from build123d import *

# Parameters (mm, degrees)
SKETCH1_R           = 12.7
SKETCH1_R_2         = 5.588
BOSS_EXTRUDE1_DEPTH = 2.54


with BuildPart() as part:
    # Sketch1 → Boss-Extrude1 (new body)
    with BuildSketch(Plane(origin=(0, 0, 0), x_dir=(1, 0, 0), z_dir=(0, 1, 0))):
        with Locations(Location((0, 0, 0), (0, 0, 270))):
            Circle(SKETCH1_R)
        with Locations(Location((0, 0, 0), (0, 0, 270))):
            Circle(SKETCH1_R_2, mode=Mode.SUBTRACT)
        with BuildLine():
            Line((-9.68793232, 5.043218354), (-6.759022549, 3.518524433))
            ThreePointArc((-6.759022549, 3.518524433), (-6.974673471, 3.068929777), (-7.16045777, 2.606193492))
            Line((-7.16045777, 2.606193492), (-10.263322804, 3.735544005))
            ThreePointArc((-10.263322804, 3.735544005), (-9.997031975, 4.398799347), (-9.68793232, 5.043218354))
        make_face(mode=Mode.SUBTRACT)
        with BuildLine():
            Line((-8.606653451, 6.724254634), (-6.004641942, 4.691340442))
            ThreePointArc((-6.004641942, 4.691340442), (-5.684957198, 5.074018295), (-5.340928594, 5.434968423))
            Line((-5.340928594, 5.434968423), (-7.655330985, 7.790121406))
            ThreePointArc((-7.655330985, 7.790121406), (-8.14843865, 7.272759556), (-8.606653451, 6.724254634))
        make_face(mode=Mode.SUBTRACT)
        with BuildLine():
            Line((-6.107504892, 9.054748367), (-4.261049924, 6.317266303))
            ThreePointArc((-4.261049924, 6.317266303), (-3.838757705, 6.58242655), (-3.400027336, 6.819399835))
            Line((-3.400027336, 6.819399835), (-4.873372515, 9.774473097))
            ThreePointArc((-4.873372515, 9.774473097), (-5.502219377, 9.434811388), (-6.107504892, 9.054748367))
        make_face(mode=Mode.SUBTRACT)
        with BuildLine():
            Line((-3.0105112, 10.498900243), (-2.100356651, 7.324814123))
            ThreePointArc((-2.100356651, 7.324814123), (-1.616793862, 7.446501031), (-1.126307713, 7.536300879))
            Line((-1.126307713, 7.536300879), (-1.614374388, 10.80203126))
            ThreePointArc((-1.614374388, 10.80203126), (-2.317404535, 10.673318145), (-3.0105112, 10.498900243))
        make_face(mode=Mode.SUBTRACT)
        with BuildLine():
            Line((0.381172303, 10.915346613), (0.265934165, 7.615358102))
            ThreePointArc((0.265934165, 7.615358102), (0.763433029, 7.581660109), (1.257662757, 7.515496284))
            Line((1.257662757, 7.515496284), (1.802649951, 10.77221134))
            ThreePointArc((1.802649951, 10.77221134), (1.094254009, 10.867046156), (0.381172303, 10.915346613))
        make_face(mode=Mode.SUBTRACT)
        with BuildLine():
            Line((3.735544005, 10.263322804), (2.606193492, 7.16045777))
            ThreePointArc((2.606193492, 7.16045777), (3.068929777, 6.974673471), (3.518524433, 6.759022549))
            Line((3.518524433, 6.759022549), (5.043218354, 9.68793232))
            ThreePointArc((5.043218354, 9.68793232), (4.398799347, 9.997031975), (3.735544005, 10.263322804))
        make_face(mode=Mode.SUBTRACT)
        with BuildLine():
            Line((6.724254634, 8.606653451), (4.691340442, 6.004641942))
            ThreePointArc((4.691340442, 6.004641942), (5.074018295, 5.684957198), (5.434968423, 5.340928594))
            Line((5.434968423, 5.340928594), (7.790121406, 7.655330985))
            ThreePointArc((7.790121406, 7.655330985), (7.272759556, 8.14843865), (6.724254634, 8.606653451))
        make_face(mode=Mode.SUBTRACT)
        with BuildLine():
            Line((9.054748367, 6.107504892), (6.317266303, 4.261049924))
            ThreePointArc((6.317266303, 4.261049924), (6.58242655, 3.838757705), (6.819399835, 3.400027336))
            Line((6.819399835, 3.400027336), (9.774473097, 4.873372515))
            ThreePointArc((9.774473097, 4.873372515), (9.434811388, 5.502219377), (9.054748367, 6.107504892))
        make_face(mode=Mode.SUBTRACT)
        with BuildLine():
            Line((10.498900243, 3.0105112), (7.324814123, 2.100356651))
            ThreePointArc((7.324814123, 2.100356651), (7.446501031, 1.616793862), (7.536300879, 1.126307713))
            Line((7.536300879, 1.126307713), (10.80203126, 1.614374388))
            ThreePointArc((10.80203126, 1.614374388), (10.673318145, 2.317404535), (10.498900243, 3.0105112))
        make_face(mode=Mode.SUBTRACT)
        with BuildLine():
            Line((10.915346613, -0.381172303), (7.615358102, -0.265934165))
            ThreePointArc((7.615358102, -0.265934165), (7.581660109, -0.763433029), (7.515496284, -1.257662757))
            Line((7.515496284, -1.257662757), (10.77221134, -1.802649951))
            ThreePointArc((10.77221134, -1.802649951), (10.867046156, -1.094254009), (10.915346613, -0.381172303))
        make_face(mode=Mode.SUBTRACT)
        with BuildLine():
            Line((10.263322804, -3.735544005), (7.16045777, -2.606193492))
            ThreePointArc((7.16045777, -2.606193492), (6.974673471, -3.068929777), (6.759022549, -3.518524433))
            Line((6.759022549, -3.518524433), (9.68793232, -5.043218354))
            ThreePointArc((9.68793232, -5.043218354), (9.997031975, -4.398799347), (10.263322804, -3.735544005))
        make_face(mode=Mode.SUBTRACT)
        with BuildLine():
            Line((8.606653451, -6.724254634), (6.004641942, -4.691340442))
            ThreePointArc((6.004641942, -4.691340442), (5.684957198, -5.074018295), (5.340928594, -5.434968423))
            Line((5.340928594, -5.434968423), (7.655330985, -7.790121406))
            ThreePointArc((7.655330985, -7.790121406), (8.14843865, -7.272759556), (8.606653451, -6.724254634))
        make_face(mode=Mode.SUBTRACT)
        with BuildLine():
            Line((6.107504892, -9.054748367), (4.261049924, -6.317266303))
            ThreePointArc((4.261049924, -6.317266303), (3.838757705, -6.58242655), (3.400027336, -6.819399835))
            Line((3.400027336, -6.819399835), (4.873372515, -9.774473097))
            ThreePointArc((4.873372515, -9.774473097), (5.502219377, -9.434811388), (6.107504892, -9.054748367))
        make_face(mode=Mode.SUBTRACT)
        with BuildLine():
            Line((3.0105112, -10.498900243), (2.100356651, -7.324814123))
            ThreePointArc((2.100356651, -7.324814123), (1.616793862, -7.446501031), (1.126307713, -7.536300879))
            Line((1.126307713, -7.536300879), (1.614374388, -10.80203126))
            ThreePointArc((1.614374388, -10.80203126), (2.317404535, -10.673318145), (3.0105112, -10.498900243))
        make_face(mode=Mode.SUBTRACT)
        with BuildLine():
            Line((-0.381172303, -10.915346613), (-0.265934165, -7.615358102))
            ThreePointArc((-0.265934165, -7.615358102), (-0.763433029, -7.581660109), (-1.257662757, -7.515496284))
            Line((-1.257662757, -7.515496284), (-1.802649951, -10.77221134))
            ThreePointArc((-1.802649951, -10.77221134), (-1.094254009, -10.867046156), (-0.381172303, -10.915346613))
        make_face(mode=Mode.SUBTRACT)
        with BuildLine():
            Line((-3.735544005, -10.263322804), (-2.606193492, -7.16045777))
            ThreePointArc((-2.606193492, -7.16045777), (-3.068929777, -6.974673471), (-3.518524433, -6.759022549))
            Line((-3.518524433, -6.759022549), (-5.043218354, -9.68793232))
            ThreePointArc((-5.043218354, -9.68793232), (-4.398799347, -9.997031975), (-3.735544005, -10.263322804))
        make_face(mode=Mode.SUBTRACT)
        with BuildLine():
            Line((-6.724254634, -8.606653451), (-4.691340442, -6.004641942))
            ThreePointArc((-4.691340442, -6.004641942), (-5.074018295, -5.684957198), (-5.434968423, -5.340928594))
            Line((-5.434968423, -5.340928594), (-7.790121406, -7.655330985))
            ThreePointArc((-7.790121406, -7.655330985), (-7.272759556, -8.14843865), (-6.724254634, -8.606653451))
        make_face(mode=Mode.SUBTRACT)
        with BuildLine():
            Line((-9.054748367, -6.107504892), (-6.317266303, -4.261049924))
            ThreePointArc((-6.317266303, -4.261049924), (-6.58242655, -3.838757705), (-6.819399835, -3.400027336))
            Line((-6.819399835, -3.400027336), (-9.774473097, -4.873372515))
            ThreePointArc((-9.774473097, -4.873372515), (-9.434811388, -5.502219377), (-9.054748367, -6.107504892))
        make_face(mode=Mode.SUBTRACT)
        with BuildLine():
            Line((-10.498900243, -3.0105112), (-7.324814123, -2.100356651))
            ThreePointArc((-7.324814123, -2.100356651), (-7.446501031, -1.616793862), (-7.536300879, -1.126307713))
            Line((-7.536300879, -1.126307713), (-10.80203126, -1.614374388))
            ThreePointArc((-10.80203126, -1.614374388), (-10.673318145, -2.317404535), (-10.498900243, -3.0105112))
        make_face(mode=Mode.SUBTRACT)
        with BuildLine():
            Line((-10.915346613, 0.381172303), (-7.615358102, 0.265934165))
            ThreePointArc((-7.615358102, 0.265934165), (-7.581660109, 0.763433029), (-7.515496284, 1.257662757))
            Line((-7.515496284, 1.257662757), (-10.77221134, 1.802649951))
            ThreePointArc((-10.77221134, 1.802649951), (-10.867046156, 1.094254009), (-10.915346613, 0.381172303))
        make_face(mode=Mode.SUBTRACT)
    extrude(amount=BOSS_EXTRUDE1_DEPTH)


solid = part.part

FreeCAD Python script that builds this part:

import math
import FreeCAD as App
import Part
import Sketcher
from FreeCAD import Vector
Q = App.Units.Quantity

doc = App.newDocument("Part")
body = doc.addObject("PartDesign::Body", "Body")

sketch1 = body.newObject("Sketcher::SketchObject", "Sketch")
sketch1.AttachmentSupport = (doc.getObject("XZ_Plane"), [""])
sketch1.MapMode = "FlatFace"
sketch1.addGeometry([
    Part.Circle(Vector(0, 0, 0), Vector(0, 0, 1), 12.7),
    Part.LineSegment(Vector(-6, -4.7, 0), Vector(-8.6, -6.7, 0)),
    Part.ArcOfCircle(Part.Circle(Vector(0, 0, 0), Vector(0, 0, 1), 10.9), math.radians(-142), math.radians(-134.5)),
    Part.LineSegment(Vector(-7.7, -7.8, 0), Vector(-5.3, -5.4, 0)),
    Part.ArcOfCircle(Part.Circle(Vector(0, 0, 0), Vector(0, 0, 1), 7.6), math.radians(-142), math.radians(-134.5)),
    Part.ArcOfCircle(Part.Circle(Vector(0, 0, 0), Vector(0, 0, 1), 10.9), math.radians(-160), math.radians(-152.5)),
    Part.LineSegment(Vector(-9.7, -5, 0), Vector(-6.8, -3.5, 0)),
    Part.ArcOfCircle(Part.Circle(Vector(0, 0, 0), Vector(0, 0, 1), 7.6), math.radians(-160), math.radians(-152.5)),
    Part.LineSegment(Vector(-7.2, -2.6, 0), Vector(-10.3, -3.7, 0)),
    Part.LineSegment(Vector(-7.6, -0.3, 0), Vector(-10.9, -0.4, 0)),
    Part.ArcOfCircle(Part.Circle(Vector(0, 0, 0), Vector(0, 0, 1), 10.9), math.radians(-178), math.radians(-170.5)),
    Part.LineSegment(Vector(-10.8, -1.8, 0), Vector(-7.5, -1.3, 0)),
    Part.ArcOfCircle(Part.Circle(Vector(0, 0, 0), Vector(0, 0, 1), 7.6), math.radians(-178), math.radians(-170.5)),
    Part.LineSegment(Vector(-4.3, -6.3, 0), Vector(-6.1, -9.1, 0)),
    Part.ArcOfCircle(Part.Circle(Vector(0, 0, 0), Vector(0, 0, 1), 10.9), math.radians(-124), math.radians(-116.5)),
    Part.LineSegment(Vector(-4.9, -9.8, 0), Vector(-3.4, -6.8, 0)),
    Part.ArcOfCircle(Part.Circle(Vector(0, 0, 0), Vector(0, 0, 1), 7.6), math.radians(-124), math.radians(-116.5)),
    Part.LineSegment(Vector(-2.1, -7.3, 0), Vector(-3, -10.5, 0)),
    Part.ArcOfCircle(Part.Circle(Vector(0, 0, 0), Vector(0, 0, 1), 10.9), math.radians(-106), math.radians(-98.5)),
    Part.LineSegment(Vector(-1.6, -10.8, 0), Vector(-1.1, -7.5, 0)),
    Part.ArcOfCircle(Part.Circle(Vector(0, 0, 0), Vector(0, 0, 1), 7.6), math.radians(-106), math.radians(-98.5)),
    Part.Circle(Vector(0, 0, 0), Vector(0, 0, 1), 5.6),
    Part.LineSegment(Vector(-7.3, 2.1, 0), Vector(-10.5, 3, 0)),
    Part.ArcOfCircle(Part.Circle(Vector(0, 0, 0), Vector(0, 0, 1), 10.9), math.radians(164), math.radians(171.5)),
    Part.LineSegment(Vector(-10.8, 1.6, 0), Vector(-7.5, 1.1, 0)),
    Part.ArcOfCircle(Part.Circle(Vector(0, 0, 0), Vector(0, 0, 1), 7.6), math.radians(164), math.radians(171.5)),
    Part.LineSegment(Vector(-6.3, 4.3, 0), Vector(-9.1, 6.1, 0)),
    Part.ArcOfCircle(Part.Circle(Vector(0, 0, 0), Vector(0, 0, 1), 10.9), math.radians(146), math.radians(153.5)),
    Part.LineSegment(Vector(-9.8, 4.9, 0), Vector(-6.8, 3.4, 0)),
    Part.ArcOfCircle(Part.Circle(Vector(0, 0, 0), Vector(0, 0, 1), 7.6), math.radians(146), math.radians(153.5)),
    Part.LineSegment(Vector(-4.7, 6, 0), Vector(-6.7, 8.6, 0)),
    Part.ArcOfCircle(Part.Circle(Vector(0, 0, 0), Vector(0, 0, 1), 10.9), math.radians(128), math.radians(135.5)),
    Part.LineSegment(Vector(-7.8, 7.7, 0), Vector(-5.4, 5.3, 0)),
    Part.ArcOfCircle(Part.Circle(Vector(0, 0, 0), Vector(0, 0, 1), 7.6), math.radians(128), math.radians(135.5)),
    Part.LineSegment(Vector(-2.6, 7.2, 0), Vector(-3.7, 10.3, 0)),
    Part.ArcOfCircle(Part.Circle(Vector(0, 0, 0), Vector(0, 0, 1), 10.9), math.radians(110), math.radians(117.5)),
    Part.LineSegment(Vector(-5, 9.7, 0), Vector(-3.5, 6.8, 0)),
    Part.ArcOfCircle(Part.Circle(Vector(0, 0, 0), Vector(0, 0, 1), 7.6), math.radians(110), math.radians(117.5)),
    Part.LineSegment(Vector(-0.3, 7.6, 0), Vector(-0.4, 10.9, 0)),
    Part.ArcOfCircle(Part.Circle(Vector(0, 0, 0), Vector(0, 0, 1), 10.9), math.radians(92), math.radians(99.5)),
    Part.LineSegment(Vector(-1.8, 10.8, 0), Vector(-1.3, 7.5, 0)),
    Part.ArcOfCircle(Part.Circle(Vector(0, 0, 0), Vector(0, 0, 1), 7.6), math.radians(92), math.radians(99.5)),
    Part.LineSegment(Vector(0.3, -7.6, 0), Vector(0.4, -10.9, 0)),
    Part.ArcOfCircle(Part.Circle(Vector(0, 0, 0), Vector(0, 0, 1), 10.9), math.radians(-88), math.radians(-80.5)),
    Part.LineSegment(Vector(1.8, -10.8, 0), Vector(1.3, -7.5, 0)),
    Part.ArcOfCircle(Part.Circle(Vector(0, 0, 0), Vector(0, 0, 1), 7.6), math.radians(-88), math.radians(-80.5)),
    Part.LineSegment(Vector(2.6, -7.2, 0), Vector(3.7, -10.3, 0)),
    Part.ArcOfCircle(Part.Circle(Vector(0, 0, 0), Vector(0, 0, 1), 10.9), math.radians(-70), math.radians(-62.5)),
    Part.LineSegment(Vector(5, -9.7, 0), Vector(3.5, -6.8, 0)),
    Part.ArcOfCircle(Part.Circle(Vector(0, 0, 0), Vector(0, 0, 1), 7.6), math.radians(-70), math.radians(-62.5)),
    Part.LineSegment(Vector(4.7, -6, 0), Vector(6.7, -8.6, 0)),
    Part.ArcOfCircle(Part.Circle(Vector(0, 0, 0), Vector(0, 0, 1), 10.9), math.radians(-52), math.radians(-44.5)),
    Part.LineSegment(Vector(7.8, -7.7, 0), Vector(5.4, -5.3, 0)),
    Part.ArcOfCircle(Part.Circle(Vector(0, 0, 0), Vector(0, 0, 1), 7.6), math.radians(-52), math.radians(-44.5)),
    Part.LineSegment(Vector(6.3, -4.3, 0), Vector(9.1, -6.1, 0)),
    Part.ArcOfCircle(Part.Circle(Vector(0, 0, 0), Vector(0, 0, 1), 10.9), math.radians(-34), math.radians(-26.5)),
    Part.LineSegment(Vector(9.8, -4.9, 0), Vector(6.8, -3.4, 0)),
    Part.ArcOfCircle(Part.Circle(Vector(0, 0, 0), Vector(0, 0, 1), 7.6), math.radians(-34), math.radians(-26.5)),
    Part.LineSegment(Vector(7.3, -2.1, 0), Vector(10.5, -3, 0)),
    Part.ArcOfCircle(Part.Circle(Vector(0, 0, 0), Vector(0, 0, 1), 10.9), math.radians(-16), math.radians(-8.5)),
    Part.LineSegment(Vector(10.8, -1.6, 0), Vector(7.5, -1.1, 0)),
    Part.ArcOfCircle(Part.Circle(Vector(0, 0, 0), Vector(0, 0, 1), 7.6), math.radians(-16), math.radians(-8.5)),
    Part.LineSegment(Vector(2.1, 7.3, 0), Vector(3, 10.5, 0)),
    Part.ArcOfCircle(Part.Circle(Vector(0, 0, 0), Vector(0, 0, 1), 10.9), math.radians(74), math.radians(81.5)),
    Part.LineSegment(Vector(1.6, 10.8, 0), Vector(1.1, 7.5, 0)),
    Part.ArcOfCircle(Part.Circle(Vector(0, 0, 0), Vector(0, 0, 1), 7.6), math.radians(74), math.radians(81.5)),
    Part.LineSegment(Vector(4.3, 6.3, 0), Vector(6.1, 9.1, 0)),
    Part.ArcOfCircle(Part.Circle(Vector(0, 0, 0), Vector(0, 0, 1), 10.9), math.radians(56), math.radians(63.5)),
    Part.LineSegment(Vector(4.9, 9.8, 0), Vector(3.4, 6.8, 0)),
    Part.ArcOfCircle(Part.Circle(Vector(0, 0, 0), Vector(0, 0, 1), 7.6), math.radians(56), math.radians(63.5)),
    Part.LineSegment(Vector(7.6, 0.3, 0), Vector(10.9, 0.4, 0)),
    Part.ArcOfCircle(Part.Circle(Vector(0, 0, 0), Vector(0, 0, 1), 10.9), math.radians(2), math.radians(9.5)),
    Part.LineSegment(Vector(10.8, 1.8, 0), Vector(7.5, 1.3, 0)),
    Part.ArcOfCircle(Part.Circle(Vector(0, 0, 0), Vector(0, 0, 1), 7.6), math.radians(2), math.radians(9.5)),
    Part.LineSegment(Vector(7.2, 2.6, 0), Vector(10.3, 3.7, 0)),
    Part.ArcOfCircle(Part.Circle(Vector(0, 0, 0), Vector(0, 0, 1), 10.9), math.radians(20), math.radians(27.5)),
    Part.LineSegment(Vector(9.7, 5, 0), Vector(6.8, 3.5, 0)),
    Part.ArcOfCircle(Part.Circle(Vector(0, 0, 0), Vector(0, 0, 1), 7.6), math.radians(20), math.radians(27.5)),
    Part.LineSegment(Vector(6, 4.7, 0), Vector(8.6, 6.7, 0)),
    Part.ArcOfCircle(Part.Circle(Vector(0, 0, 0), Vector(0, 0, 1), 10.9), math.radians(38), math.radians(45.5)),
    Part.LineSegment(Vector(7.7, 7.8, 0), Vector(5.3, 5.4, 0)),
    Part.ArcOfCircle(Part.Circle(Vector(0, 0, 0), Vector(0, 0, 1), 7.6), math.radians(38), math.radians(45.5)),
], False)
sketch1.addConstraint([
    Sketcher.Constraint("Coincident", 1, 2, 2, 1),
    Sketcher.Constraint("Coincident", 2, 2, 3, 1),
    Sketcher.Constraint("Coincident", 3, 2, 4, 2),
    Sketcher.Constraint("Coincident", 4, 1, 1, 1),
    Sketcher.Constraint("Coincident", 5, 2, 6, 1),
    Sketcher.Constraint("Coincident", 6, 2, 7, 2),
    Sketcher.Constraint("Coincident", 7, 1, 8, 1),
    Sketcher.Constraint("Coincident", 8, 2, 5, 1),
    Sketcher.Constraint("Coincident", 9, 2, 10, 1),
    Sketcher.Constraint("Coincident", 10, 2, 11, 1),
    Sketcher.Constraint("Coincident", 11, 2, 12, 2),
    Sketcher.Constraint("Coincident", 12, 1, 9, 1),
    Sketcher.Constraint("Coincident", 13, 2, 14, 1),
    Sketcher.Constraint("Coincident", 14, 2, 15, 1),
    Sketcher.Constraint("Coincident", 15, 2, 16, 2),
    Sketcher.Constraint("Coincident", 16, 1, 13, 1),
    Sketcher.Constraint("Coincident", 17, 2, 18, 1),
    Sketcher.Constraint("Coincident", 18, 2, 19, 1),
    Sketcher.Constraint("Coincident", 19, 2, 20, 2),
    Sketcher.Constraint("Coincident", 20, 1, 17, 1),
    Sketcher.Constraint("Coincident", 22, 2, 23, 1),
    Sketcher.Constraint("Coincident", 23, 2, 24, 1),
    Sketcher.Constraint("Coincident", 24, 2, 25, 2),
    Sketcher.Constraint("Coincident", 25, 1, 22, 1),
    Sketcher.Constraint("Coincident", 26, 2, 27, 1),
    Sketcher.Constraint("Coincident", 27, 2, 28, 1),
    Sketcher.Constraint("Coincident", 28, 2, 29, 2),
    Sketcher.Constraint("Coincident", 29, 1, 26, 1),
    Sketcher.Constraint("Coincident", 30, 2, 31, 1),
    Sketcher.Constraint("Coincident", 31, 2, 32, 1),
    Sketcher.Constraint("Coincident", 32, 2, 33, 2),
    Sketcher.Constraint("Coincident", 33, 1, 30, 1),
    Sketcher.Constraint("Coincident", 34, 2, 35, 1),
    Sketcher.Constraint("Coincident", 35, 2, 36, 1),
    Sketcher.Constraint("Coincident", 36, 2, 37, 2),
    Sketcher.Constraint("Coincident", 37, 1, 34, 1),
    Sketcher.Constraint("Coincident", 38, 2, 39, 1),
    Sketcher.Constraint("Coincident", 39, 2, 40, 1),
    Sketcher.Constraint("Coincident", 40, 2, 41, 2),
    Sketcher.Constraint("Coincident", 41, 1, 38, 1),
    Sketcher.Constraint("Coincident", 42, 2, 43, 1),
    Sketcher.Constraint("Coincident", 43, 2, 44, 1),
    Sketcher.Constraint("Coincident", 44, 2, 45, 2),
    Sketcher.Constraint("Coincident", 45, 1, 42, 1),
    Sketcher.Constraint("Coincident", 46, 2, 47, 1),
    Sketcher.Constraint("Coincident", 47, 2, 48, 1),
    Sketcher.Constraint("Coincident", 48, 2, 49, 2),
    Sketcher.Constraint("Coincident", 49, 1, 46, 1),
    Sketcher.Constraint("Coincident", 50, 2, 51, 1),
    Sketcher.Constraint("Coincident", 51, 2, 52, 1),
    Sketcher.Constraint("Coincident", 52, 2, 53, 2),
    Sketcher.Constraint("Coincident", 53, 1, 50, 1),
    Sketcher.Constraint("Coincident", 54, 2, 55, 1),
    Sketcher.Constraint("Coincident", 55, 2, 56, 1),
    Sketcher.Constraint("Coincident", 56, 2, 57, 2),
    Sketcher.Constraint("Coincident", 57, 1, 54, 1),
    Sketcher.Constraint("Coincident", 58, 2, 59, 1),
    Sketcher.Constraint("Coincident", 59, 2, 60, 1),
    Sketcher.Constraint("Coincident", 60, 2, 61, 2),
    Sketcher.Constraint("Coincident", 61, 1, 58, 1),
    Sketcher.Constraint("Coincident", 62, 2, 63, 1),
    Sketcher.Constraint("Coincident", 63, 2, 64, 1),
    Sketcher.Constraint("Coincident", 64, 2, 65, 2),
    Sketcher.Constraint("Coincident", 65, 1, 62, 1),
    Sketcher.Constraint("Coincident", 66, 2, 67, 1),
    Sketcher.Constraint("Coincident", 67, 2, 68, 1),
    Sketcher.Constraint("Coincident", 68, 2, 69, 2),
    Sketcher.Constraint("Coincident", 69, 1, 66, 1),
    Sketcher.Constraint("Coincident", 70, 2, 71, 1),
    Sketcher.Constraint("Coincident", 71, 2, 72, 1),
    Sketcher.Constraint("Coincident", 72, 2, 73, 2),
    Sketcher.Constraint("Coincident", 73, 1, 70, 1),
    Sketcher.Constraint("Coincident", 74, 2, 75, 1),
    Sketcher.Constraint("Coincident", 75, 2, 76, 1),
    Sketcher.Constraint("Coincident", 76, 2, 77, 2),
    Sketcher.Constraint("Coincident", 77, 1, 74, 1),
    Sketcher.Constraint("Coincident", 78, 2, 79, 1),
    Sketcher.Constraint("Coincident", 79, 2, 80, 1),
    Sketcher.Constraint("Coincident", 80, 2, 81, 2),
    Sketcher.Constraint("Coincident", 81, 1, 78, 1),
    Sketcher.Constraint("Coincident", 0, 3, -1, 1),
    Sketcher.Constraint("Coincident", 2, 3, -1, 1),
    Sketcher.Constraint("Coincident", 4, 3, -1, 1),
    Sketcher.Constraint("Coincident", 5, 3, -1, 1),
    Sketcher.Constraint("Coincident", 7, 3, -1, 1),
    Sketcher.Constraint("Coincident", 10, 3, -1, 1),
    Sketcher.Constraint("Coincident", 12, 3, -1, 1),
    Sketcher.Constraint("Coincident", 14, 3, -1, 1),
    Sketcher.Constraint("Coincident", 16, 3, -1, 1),
    Sketcher.Constraint("Coincident", 18, 3, -1, 1),
    Sketcher.Constraint("Coincident", 20, 3, -1, 1),
    Sketcher.Constraint("Coincident", 21, 3, -1, 1),
    Sketcher.Constraint("Coincident", 23, 3, -1, 1),
    Sketcher.Constraint("Coincident", 25, 3, -1, 1),
    Sketcher.Constraint("Coincident", 27, 3, -1, 1),
    Sketcher.Constraint("Coincident", 29, 3, -1, 1),
    Sketcher.Constraint("Coincident", 31, 3, -1, 1),
    Sketcher.Constraint("Coincident", 33, 3, -1, 1),
    Sketcher.Constraint("Coincident", 35, 3, -1, 1),
    Sketcher.Constraint("Coincident", 37, 3, -1, 1),
    Sketcher.Constraint("Coincident", 39, 3, -1, 1),
    Sketcher.Constraint("Coincident", 41, 3, -1, 1),
    Sketcher.Constraint("Coincident", 43, 3, -1, 1),
    Sketcher.Constraint("Coincident", 45, 3, -1, 1),
    Sketcher.Constraint("Coincident", 47, 3, -1, 1),
    Sketcher.Constraint("Coincident", 49, 3, -1, 1),
    Sketcher.Constraint("Coincident", 51, 3, -1, 1),
    Sketcher.Constraint("Coincident", 53, 3, -1, 1),
    Sketcher.Constraint("Coincident", 55, 3, -1, 1),
    Sketcher.Constraint("Coincident", 57, 3, -1, 1),
    Sketcher.Constraint("Coincident", 59, 3, -1, 1),
    Sketcher.Constraint("Coincident", 61, 3, -1, 1),
    Sketcher.Constraint("Coincident", 63, 3, -1, 1),
    Sketcher.Constraint("Coincident", 65, 3, -1, 1),
    Sketcher.Constraint("Coincident", 67, 3, -1, 1),
    Sketcher.Constraint("Coincident", 69, 3, -1, 1),
    Sketcher.Constraint("Coincident", 71, 3, -1, 1),
    Sketcher.Constraint("Coincident", 73, 3, -1, 1),
    Sketcher.Constraint("Coincident", 75, 3, -1, 1),
    Sketcher.Constraint("Coincident", 77, 3, -1, 1),
    Sketcher.Constraint("Coincident", 79, 3, -1, 1),
    Sketcher.Constraint("Coincident", 81, 3, -1, 1),
    Sketcher.Constraint("Equal", 2, 5),
    Sketcher.Constraint("Equal", 4, 7),
    Sketcher.Constraint("Equal", 5, 10),
    Sketcher.Constraint("Equal", 7, 12),
    Sketcher.Constraint("Equal", 10, 14),
    Sketcher.Constraint("Equal", 12, 16),
    Sketcher.Constraint("Equal", 14, 18),
    Sketcher.Constraint("Equal", 16, 20),
    Sketcher.Constraint("Equal", 18, 23),
    Sketcher.Constraint("Equal", 20, 25),
    Sketcher.Constraint("Equal", 23, 27),
    Sketcher.Constraint("Equal", 25, 29),
    Sketcher.Constraint("Equal", 27, 31),
    Sketcher.Constraint("Equal", 29, 33),
    Sketcher.Constraint("Equal", 31, 35),
    Sketcher.Constraint("Equal", 33, 37),
    Sketcher.Constraint("Equal", 35, 39),
    Sketcher.Constraint("Equal", 37, 41),
    Sketcher.Constraint("Equal", 39, 43),
    Sketcher.Constraint("Equal", 41, 45),
    Sketcher.Constraint("Equal", 43, 47),
    Sketcher.Constraint("Equal", 45, 49),
    Sketcher.Constraint("Equal", 47, 51),
    Sketcher.Constraint("Equal", 49, 53),
    Sketcher.Constraint("Equal", 51, 55),
    Sketcher.Constraint("Equal", 53, 57),
    Sketcher.Constraint("Equal", 55, 59),
    Sketcher.Constraint("Equal", 57, 61),
    Sketcher.Constraint("Equal", 59, 63),
    Sketcher.Constraint("Equal", 61, 65),
    Sketcher.Constraint("Equal", 63, 67),
    Sketcher.Constraint("Equal", 65, 69),
    Sketcher.Constraint("Equal", 67, 71),
    Sketcher.Constraint("Equal", 69, 73),
    Sketcher.Constraint("Equal", 71, 75),
    Sketcher.Constraint("Equal", 73, 77),
    Sketcher.Constraint("Equal", 75, 79),
    Sketcher.Constraint("Equal", 77, 81),
    Sketcher.Constraint("Perpendicular", 17, 22),
    Sketcher.Constraint("Perpendicular", 19, 24),
    Sketcher.Constraint("Perpendicular", 13, 26),
    Sketcher.Constraint("Perpendicular", 15, 28),
    Sketcher.Constraint("Perpendicular", 1, 30),
    Sketcher.Constraint("Perpendicular", 3, 32),
    Sketcher.Constraint("Perpendicular", 8, 34),
    Sketcher.Constraint("Perpendicular", 6, 36),
    Sketcher.Constraint("Perpendicular", 9, 38),
    Sketcher.Constraint("Perpendicular", 11, 40),
    Sketcher.Constraint("Parallel", 38, 42),
    Sketcher.Constraint("Parallel", 40, 44),
    Sketcher.Constraint("Parallel", 34, 46),
    Sketcher.Constraint("Parallel", 36, 48),
    Sketcher.Constraint("Parallel", 30, 50),
    Sketcher.Constraint("Parallel", 32, 52),
    Sketcher.Constraint("Parallel", 26, 54),
    Sketcher.Constraint("Parallel", 28, 56),
    Sketcher.Constraint("Parallel", 22, 58),
    Sketcher.Constraint("Parallel", 24, 60),
    Sketcher.Constraint("Perpendicular", 58, 62),
    Sketcher.Constraint("Perpendicular", 60, 64),
    Sketcher.Constraint("Perpendicular", 54, 66),
    Sketcher.Constraint("Perpendicular", 56, 68),
    Sketcher.Constraint("Perpendicular", 42, 70),
    Sketcher.Constraint("Perpendicular", 44, 72),
    Sketcher.Constraint("Perpendicular", 46, 74),
    Sketcher.Constraint("Perpendicular", 48, 76),
    Sketcher.Constraint("Perpendicular", 50, 78),
    Sketcher.Constraint("Perpendicular", 52, 80),
    Sketcher.Constraint("Diameter", 0, Q("1 in")),
    Sketcher.Constraint("Radius", 4, Q("0.3 in")),
    Sketcher.Constraint("Diameter", 21, Q("0.44 in")),
    Sketcher.Constraint("Radius", 2, Q("0.43 in")),
    Sketcher.Constraint("Angle", 1, Q("-142 deg")),
    Sketcher.Constraint("Angle", 8, Q("-160 deg")),
    Sketcher.Constraint("Angle", 9, Q("-178 deg")),
    Sketcher.Constraint("Angle", 13, Q("-124 deg")),
    Sketcher.Constraint("Angle", 17, Q("-106 deg")),
    Sketcher.Constraint("Angle", 3, Q("45.5 deg")),
    Sketcher.Constraint("Angle", 6, Q("27.5 deg")),
    Sketcher.Constraint("Angle", 11, Q("9.5 deg")),
    Sketcher.Constraint("Angle", 15, Q("63.5 deg")),
    Sketcher.Constraint("Angle", 19, Q("81.5 deg")),
    Sketcher.Constraint("DistanceY", 15, 2, -1, 1, 6.8194),
    Sketcher.Constraint("DistanceY", 17, 2, -1, 1, 10.4989),
    Sketcher.Constraint("DistanceY", 19, 2, -1, 1, 7.536301),
    Sketcher.Constraint("DistanceX", 22, 2, -1, 1, 10.4989),
    Sketcher.Constraint("DistanceX", 24, 2, -1, 1, 7.536301),
    Sketcher.Constraint("DistanceX", 28, 2, -1, 1, 6.8194),
    Sketcher.Constraint("DistanceX", -1, 1, 56, 2, 6.8194),
    Sketcher.Constraint("DistanceX", -1, 1, 58, 2, 10.4989),
    Sketcher.Constraint("DistanceX", -1, 1, 60, 2, 7.536301),
    Sketcher.Constraint("DistanceY", -1, 1, 62, 2, 10.4989),
    Sketcher.Constraint("DistanceY", -1, 1, 64, 2, 7.536301),
    Sketcher.Constraint("DistanceY", -1, 1, 68, 2, 6.8194),
    Sketcher.Constraint("DistanceX", 2, 2, -1, 1, 7.655331),
    Sketcher.Constraint("DistanceX", 4, 1, -1, 1, 6.004642),
    Sketcher.Constraint("DistanceY", 5, 2, -1, 1, 5.043218),
    Sketcher.Constraint("DistanceX", 10, 2, -1, 1, 10.772211),
    Sketcher.Constraint("DistanceX", 12, 1, -1, 1, 7.615358),
    Sketcher.Constraint("DistanceY", 13, 2, -1, 1, 9.054748),
    Sketcher.Constraint("DistanceX", 26, 2, -1, 1, 9.054748),
    Sketcher.Constraint("DistanceX", 31, 2, -1, 1, 7.790121),
    Sketcher.Constraint("DistanceX", 33, 1, -1, 1, 4.69134),
    Sketcher.Constraint("DistanceX", 35, 2, -1, 1, 5.043218),
    Sketcher.Constraint("DistanceX", 39, 2, -1, 1, 1.80265),
    Sketcher.Constraint("DistanceY", -1, 1, 41, 1, 7.615358),
    Sketcher.Constraint("DistanceX", -1, 1, 43, 2, 1.80265),
    Sketcher.Constraint("DistanceY", 45, 1, -1, 1, 7.615358),
    Sketcher.Constraint("DistanceX", -1, 1, 47, 2, 5.043218),
    Sketcher.Constraint("DistanceX", -1, 1, 51, 2, 7.790121),
    Sketcher.Constraint("DistanceX", -1, 1, 53, 1, 4.69134),
    Sketcher.Constraint("DistanceX", -1, 1, 54, 2, 9.054748),
    Sketcher.Constraint("DistanceY", -1, 1, 66, 2, 9.054748),
    Sketcher.Constraint("DistanceX", -1, 1, 71, 2, 10.772211),
    Sketcher.Constraint("DistanceX", -1, 1, 73, 1, 7.615358),
    Sketcher.Constraint("DistanceY", -1, 1, 75, 2, 5.043218),
    Sketcher.Constraint("DistanceX", -1, 1, 79, 2, 7.655331),
    Sketcher.Constraint("DistanceX", -1, 1, 81, 1, 6.004642),
    Sketcher.Constraint("DistanceX", 7, 1, -1, 1, 7.160458),
    Sketcher.Constraint("DistanceX", 34, 2, -1, 1, 3.735544),
    Sketcher.Constraint("DistanceX", -1, 1, 46, 2, 3.735544),
    Sketcher.Constraint("DistanceX", -1, 1, 74, 2, 10.263323),
])
pad1 = body.newObject("PartDesign::Pad", "Pad")
pad1.Profile = sketch1
pad1.Length = Q("0.1 in")
pad1.Reversed = True

doc.recompute()
